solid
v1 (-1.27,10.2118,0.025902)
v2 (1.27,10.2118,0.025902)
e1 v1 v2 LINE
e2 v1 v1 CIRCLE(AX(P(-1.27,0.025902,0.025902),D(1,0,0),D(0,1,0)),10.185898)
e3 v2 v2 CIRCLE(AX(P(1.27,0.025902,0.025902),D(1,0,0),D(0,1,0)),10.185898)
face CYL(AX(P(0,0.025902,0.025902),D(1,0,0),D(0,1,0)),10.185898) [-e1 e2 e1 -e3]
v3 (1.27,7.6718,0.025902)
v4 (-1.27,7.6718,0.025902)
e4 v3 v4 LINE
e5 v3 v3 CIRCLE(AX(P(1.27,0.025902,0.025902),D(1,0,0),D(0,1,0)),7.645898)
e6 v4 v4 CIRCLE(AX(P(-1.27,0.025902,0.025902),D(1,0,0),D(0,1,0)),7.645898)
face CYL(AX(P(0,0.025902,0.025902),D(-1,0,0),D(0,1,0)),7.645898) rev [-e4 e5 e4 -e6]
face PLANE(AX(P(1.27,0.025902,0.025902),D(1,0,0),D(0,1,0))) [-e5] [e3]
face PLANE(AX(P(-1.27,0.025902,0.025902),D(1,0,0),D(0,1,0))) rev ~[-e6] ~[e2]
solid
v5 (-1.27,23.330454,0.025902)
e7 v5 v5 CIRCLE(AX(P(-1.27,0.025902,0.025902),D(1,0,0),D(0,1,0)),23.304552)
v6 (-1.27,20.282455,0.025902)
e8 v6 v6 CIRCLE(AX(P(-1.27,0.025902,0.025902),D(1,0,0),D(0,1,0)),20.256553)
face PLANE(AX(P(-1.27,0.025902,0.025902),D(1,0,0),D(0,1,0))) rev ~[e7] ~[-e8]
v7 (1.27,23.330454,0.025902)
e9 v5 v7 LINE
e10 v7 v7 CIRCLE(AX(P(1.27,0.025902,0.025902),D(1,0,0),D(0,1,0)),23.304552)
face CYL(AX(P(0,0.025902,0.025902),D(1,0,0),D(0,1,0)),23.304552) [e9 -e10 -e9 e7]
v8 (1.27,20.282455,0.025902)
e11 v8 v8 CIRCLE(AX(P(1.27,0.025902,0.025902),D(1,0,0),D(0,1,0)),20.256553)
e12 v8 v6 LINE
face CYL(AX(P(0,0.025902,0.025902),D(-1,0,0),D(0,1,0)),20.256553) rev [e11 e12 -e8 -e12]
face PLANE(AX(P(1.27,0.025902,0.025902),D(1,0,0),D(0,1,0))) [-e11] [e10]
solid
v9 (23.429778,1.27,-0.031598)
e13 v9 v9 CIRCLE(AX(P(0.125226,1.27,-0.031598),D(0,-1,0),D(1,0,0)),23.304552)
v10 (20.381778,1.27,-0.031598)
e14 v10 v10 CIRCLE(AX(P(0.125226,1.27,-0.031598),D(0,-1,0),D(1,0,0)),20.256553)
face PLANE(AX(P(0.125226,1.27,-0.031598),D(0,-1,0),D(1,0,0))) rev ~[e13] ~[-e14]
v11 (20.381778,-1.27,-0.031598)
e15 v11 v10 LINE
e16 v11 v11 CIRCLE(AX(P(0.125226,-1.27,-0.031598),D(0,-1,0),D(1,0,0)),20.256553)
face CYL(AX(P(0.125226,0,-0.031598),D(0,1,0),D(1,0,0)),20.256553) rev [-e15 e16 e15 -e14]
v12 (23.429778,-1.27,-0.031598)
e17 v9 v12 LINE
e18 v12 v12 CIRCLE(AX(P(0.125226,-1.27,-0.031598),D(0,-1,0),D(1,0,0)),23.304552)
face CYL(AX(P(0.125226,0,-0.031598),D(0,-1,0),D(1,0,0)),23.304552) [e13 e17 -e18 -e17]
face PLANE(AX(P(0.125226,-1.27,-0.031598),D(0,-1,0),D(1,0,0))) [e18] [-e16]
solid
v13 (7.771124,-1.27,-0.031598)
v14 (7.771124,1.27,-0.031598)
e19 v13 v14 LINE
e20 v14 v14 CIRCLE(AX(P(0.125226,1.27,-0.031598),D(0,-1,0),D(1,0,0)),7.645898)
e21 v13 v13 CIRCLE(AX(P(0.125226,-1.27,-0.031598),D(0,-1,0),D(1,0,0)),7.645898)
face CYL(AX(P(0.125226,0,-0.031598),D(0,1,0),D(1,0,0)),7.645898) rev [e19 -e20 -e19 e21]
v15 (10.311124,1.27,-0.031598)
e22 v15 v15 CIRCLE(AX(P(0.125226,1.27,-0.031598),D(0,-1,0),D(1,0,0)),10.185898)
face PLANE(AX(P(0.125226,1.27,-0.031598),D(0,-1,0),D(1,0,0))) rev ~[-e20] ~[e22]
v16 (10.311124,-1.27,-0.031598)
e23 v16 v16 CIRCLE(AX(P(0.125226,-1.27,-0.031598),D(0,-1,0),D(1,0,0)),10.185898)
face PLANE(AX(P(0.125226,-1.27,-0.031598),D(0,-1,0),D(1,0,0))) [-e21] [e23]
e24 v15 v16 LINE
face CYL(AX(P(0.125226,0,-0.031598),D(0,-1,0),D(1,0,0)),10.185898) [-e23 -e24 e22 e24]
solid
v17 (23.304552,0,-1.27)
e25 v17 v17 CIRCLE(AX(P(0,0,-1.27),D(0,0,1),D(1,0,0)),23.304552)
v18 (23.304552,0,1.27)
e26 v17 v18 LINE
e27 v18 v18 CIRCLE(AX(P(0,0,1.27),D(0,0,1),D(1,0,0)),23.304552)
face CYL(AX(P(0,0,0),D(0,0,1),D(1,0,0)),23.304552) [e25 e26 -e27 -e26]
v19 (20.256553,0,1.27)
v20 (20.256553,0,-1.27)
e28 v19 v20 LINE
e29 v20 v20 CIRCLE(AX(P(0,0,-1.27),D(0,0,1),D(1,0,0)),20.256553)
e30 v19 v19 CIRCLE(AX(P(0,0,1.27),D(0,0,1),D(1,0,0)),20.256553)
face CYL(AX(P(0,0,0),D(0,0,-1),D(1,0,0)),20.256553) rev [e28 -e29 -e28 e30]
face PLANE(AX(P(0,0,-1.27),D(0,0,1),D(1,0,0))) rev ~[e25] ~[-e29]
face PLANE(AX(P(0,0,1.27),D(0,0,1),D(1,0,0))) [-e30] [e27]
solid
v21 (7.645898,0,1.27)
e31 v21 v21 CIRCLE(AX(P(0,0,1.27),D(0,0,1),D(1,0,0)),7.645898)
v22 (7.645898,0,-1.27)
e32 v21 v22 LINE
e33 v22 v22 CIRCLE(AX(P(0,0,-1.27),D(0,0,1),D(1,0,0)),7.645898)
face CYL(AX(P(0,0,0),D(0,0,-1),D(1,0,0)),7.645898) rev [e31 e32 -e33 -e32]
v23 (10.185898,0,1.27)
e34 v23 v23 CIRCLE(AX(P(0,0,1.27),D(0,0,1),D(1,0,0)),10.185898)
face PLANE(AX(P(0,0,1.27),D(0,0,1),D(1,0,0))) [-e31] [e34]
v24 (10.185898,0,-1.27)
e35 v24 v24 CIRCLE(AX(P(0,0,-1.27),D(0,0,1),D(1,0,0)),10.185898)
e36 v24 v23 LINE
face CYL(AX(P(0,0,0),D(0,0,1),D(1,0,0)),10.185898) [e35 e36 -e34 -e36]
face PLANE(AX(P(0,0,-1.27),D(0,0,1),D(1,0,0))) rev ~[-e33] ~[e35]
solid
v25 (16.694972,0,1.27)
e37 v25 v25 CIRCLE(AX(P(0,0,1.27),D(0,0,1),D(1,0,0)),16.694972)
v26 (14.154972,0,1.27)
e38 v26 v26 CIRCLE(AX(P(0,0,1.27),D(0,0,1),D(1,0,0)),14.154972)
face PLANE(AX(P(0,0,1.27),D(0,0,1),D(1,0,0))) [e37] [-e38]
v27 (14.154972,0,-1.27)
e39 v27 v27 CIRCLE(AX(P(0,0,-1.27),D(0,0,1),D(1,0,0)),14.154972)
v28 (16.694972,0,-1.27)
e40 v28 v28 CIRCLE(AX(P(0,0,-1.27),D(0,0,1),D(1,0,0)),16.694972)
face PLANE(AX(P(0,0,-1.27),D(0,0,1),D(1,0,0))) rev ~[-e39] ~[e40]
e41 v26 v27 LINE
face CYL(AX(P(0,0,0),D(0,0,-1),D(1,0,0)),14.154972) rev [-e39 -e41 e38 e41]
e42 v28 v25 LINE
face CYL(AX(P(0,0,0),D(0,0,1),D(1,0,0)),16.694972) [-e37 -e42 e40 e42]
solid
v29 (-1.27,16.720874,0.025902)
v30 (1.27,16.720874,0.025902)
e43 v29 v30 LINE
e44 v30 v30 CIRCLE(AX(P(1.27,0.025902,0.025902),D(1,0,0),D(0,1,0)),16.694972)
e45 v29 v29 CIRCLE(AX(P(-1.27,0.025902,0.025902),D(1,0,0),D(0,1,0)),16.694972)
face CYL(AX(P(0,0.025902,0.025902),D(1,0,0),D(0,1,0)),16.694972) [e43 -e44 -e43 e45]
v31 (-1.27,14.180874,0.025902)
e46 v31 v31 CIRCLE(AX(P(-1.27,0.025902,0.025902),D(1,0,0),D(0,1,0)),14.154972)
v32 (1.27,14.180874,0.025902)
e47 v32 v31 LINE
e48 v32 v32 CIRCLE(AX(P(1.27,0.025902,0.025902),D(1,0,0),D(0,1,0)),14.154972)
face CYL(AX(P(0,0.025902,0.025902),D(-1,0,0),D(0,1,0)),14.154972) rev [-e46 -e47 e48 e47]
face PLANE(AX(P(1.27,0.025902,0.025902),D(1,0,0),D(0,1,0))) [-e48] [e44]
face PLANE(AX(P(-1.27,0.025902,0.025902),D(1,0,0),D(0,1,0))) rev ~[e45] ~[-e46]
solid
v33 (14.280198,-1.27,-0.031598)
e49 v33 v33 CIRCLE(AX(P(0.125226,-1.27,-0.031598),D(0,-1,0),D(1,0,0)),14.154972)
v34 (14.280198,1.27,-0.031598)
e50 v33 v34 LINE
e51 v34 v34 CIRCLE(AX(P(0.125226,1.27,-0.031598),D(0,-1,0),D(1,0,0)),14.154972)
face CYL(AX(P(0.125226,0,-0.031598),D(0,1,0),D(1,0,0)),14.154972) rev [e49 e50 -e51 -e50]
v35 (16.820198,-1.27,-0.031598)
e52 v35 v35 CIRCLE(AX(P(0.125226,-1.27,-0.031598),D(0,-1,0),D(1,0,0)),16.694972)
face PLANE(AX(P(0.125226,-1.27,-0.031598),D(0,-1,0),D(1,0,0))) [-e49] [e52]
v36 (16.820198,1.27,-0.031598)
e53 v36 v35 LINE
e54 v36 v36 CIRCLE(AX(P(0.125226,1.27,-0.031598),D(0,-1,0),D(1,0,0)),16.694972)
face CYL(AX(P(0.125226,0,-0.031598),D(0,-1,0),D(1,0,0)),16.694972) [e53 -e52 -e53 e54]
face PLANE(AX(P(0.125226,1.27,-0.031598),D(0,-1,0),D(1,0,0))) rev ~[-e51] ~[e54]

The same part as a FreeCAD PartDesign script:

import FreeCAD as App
import Part
import Sketcher
Q = App.Units.Quantity

doc = App.newDocument("Part")
body = doc.addObject("PartDesign::Body", "Body")

# Sketch on XY plane
sketch1 = body.newObject("Sketcher::SketchObject", "Sketch")
sketch1.AttachmentSupport = (doc.getObject("XY_Plane"), [""])
sketch1.MapMode = "FlatFace"
sketch1.addGeometry([
    Part.Circle(App.Vector(0, 0, 0), App.Vector(0, 0, 1), 17),
    Part.Circle(App.Vector(0, 0, 0), App.Vector(0, 0, 1), 14),
], False)
sketch1.addConstraint([
    Sketcher.Constraint("Coincident", 0, 3, -1, 1),
    Sketcher.Constraint("Coincident", 1, 3, -1, 1),
    Sketcher.Constraint("Diameter", 0, 33.389944),
    Sketcher.Constraint("Diameter", 1, 28.309944),
])
pad1 = body.newObject("PartDesign::Pad", "Pad")
pad1.Profile = sketch1
pad1.Length = Q("0.1 in")
pad1.Midplane = True
body2 = doc.addObject("PartDesign::Body", "Body001")

# Sketch on XY plane
sketch2 = body2.newObject("Sketcher::SketchObject", "Sketch001")
sketch2.AttachmentSupport = (doc.getObject("XY_Plane001"), [""])
sketch2.MapMode = "FlatFace"
sketch2.addGeometry([
    Part.Circle(App.Vector(0, 0, 0), App.Vector(0, 0, 1), 23),
    Part.Circle(App.Vector(0, 0, 0), App.Vector(0, 0, 1), 20),
], False)
sketch2.addConstraint([
    Sketcher.Constraint("Coincident", 0, 3, -1, 1),
    Sketcher.Constraint("Coincident", 1, 3, -1, 1),
    Sketcher.Constraint("Diameter", 0, 46.609104),
    Sketcher.Constraint("Diameter", 1, 40.513106),
])
pad2 = body2.newObject("PartDesign::Pad", "Pad001")
pad2.Profile = sketch2
pad2.Length = Q("0.1 in")
pad2.Midplane = True
body3 = doc.addObject("PartDesign::Body", "Body002")

# Sketch on XY plane
sketch3 = body3.newObject("Sketcher::SketchObject", "Sketch002")
sketch3.AttachmentSupport = (doc.getObject("XY_Plane002"), [""])
sketch3.MapMode = "FlatFace"
sketch3.addGeometry([
    Part.Circle(App.Vector(0, 0, 0), App.Vector(0, 0, 1), 10),
    Part.Circle(App.Vector(0, 0, 0), App.Vector(0, 0, 1), 8),
], False)
sketch3.addConstraint([
    Sketcher.Constraint("Coincident", 0, 3, -1, 1),
    Sketcher.Constraint("Coincident", 1, 3, -1, 1),
    Sketcher.Constraint("Diameter", 0, 20.371797),
    Sketcher.Constraint("Diameter", 1, 15.291797),
])
pad3 = body3.newObject("PartDesign::Pad", "Pad002")
pad3.Profile = sketch3
pad3.Length = Q("0.1 in")
pad3.Midplane = True
body4 = doc.addObject("PartDesign::Body", "Body003")

# Sketch on XZ plane
sketch4 = body4.newObject("Sketcher::SketchObject", "Sketch003")
sketch4.AttachmentSupport = (doc.getObject("XZ_Plane003"), [""])
sketch4.MapMode = "FlatFace"
sketch4.addGeometry([
    Part.Circle(App.Vector(0, 0, 0), App.Vector(0, 0, 1), 23),
    Part.Circle(App.Vector(0, 0, 0), App.Vector(0, 0, 1), 20),
], False)
sketch4.addConstraint([
    Sketcher.Constraint("Coincident", 1, 3, 0, 3),
    Sketcher.Constraint("Diameter", 0, 46.609104),
    Sketcher.Constraint("Diameter", 1, 40.513106),
    Sketcher.Constraint("DistanceX", -1, 1, 0, 3, 0.125226),
    Sketcher.Constraint("DistanceY", 0, 3, -1, 1, 0.031598),
])
pad4 = body4.newObject("PartDesign::Pad", "Pad003")
pad4.Profile = sketch4
pad4.Length = Q("0.1 in")
pad4.Midplane = True
body5 = doc.addObject("PartDesign::Body", "Body004")

# Sketch on XZ plane
sketch5 = body5.newObject("Sketcher::SketchObject", "Sketch004")
sketch5.AttachmentSupport = (doc.getObject("XZ_Plane004"), [""])
sketch5.MapMode = "FlatFace"
sketch5.addGeometry([
    Part.Circle(App.Vector(0, 0, 0), App.Vector(0, 0, 1), 17),
    Part.Circle(App.Vector(0, 0, 0), App.Vector(0, 0, 1), 14),
], False)
sketch5.addConstraint([
    Sketcher.Constraint("Coincident", 1, 3, 0, 3),
    Sketcher.Constraint("Diameter", 0, 33.389944),
    Sketcher.Constraint("Diameter", 1, 28.309944),
    Sketcher.Constraint("DistanceX", -1, 1, 0, 3, 0.125226),
    Sketcher.Constraint("DistanceY", 0, 3, -1, 1, 0.031598),
])
pad5 = body5.newObject("PartDesign::Pad", "Pad004")
pad5.Profile = sketch5
pad5.Length = Q("0.1 in")
pad5.Midplane = True
body6 = doc.addObject("PartDesign::Body", "Body005")

# Sketch on XZ plane
sketch6 = body6.newObject("Sketcher::SketchObject", "Sketch005")
sketch6.AttachmentSupport = (doc.getObject("XZ_Plane005"), [""])
sketch6.MapMode = "FlatFace"
sketch6.addGeometry([
    Part.Circle(App.Vector(0, 0, 0), App.Vector(0, 0, 1), 10),
    Part.Circle(App.Vector(0, 0, 0), App.Vector(0, 0, 1), 8),
], False)
sketch6.addConstraint([
    Sketcher.Constraint("Coincident", 1, 3, 0, 3),
    Sketcher.Constraint("Diameter", 0, 20.371797),
    Sketcher.Constraint("Diameter", 1, 15.291797),
    Sketcher.Constraint("DistanceX", -1, 1, 0, 3, 0.125226),
    Sketcher.Constraint("DistanceY", 0, 3, -1, 1, 0.031598),
])
pad6 = body6.newObject("PartDesign::Pad", "Pad005")
pad6.Profile = sketch6
pad6.Length = Q("0.1 in")
pad6.Midplane = True
body7 = doc.addObject("PartDesign::Body", "Body006")

# Sketch on YZ plane
sketch7 = body7.newObject("Sketcher::SketchObject", "Sketch006")
sketch7.AttachmentSupport = (doc.getObject("YZ_Plane006"), [""])
sketch7.MapMode = "FlatFace"
sketch7.addGeometry([
    Part.Circle(App.Vector(0, 0, 0), App.Vector(0, 0, 1), 23),
    Part.Circle(App.Vector(0, 0, 0), App.Vector(0, 0, 1), 20),
], False)
sketch7.addConstraint([
    Sketcher.Constraint("Coincident", 1, 3, 0, 3),
    Sketcher.Constraint("Diameter", 0, 46.609104),
    Sketcher.Constraint("Diameter", 1, 40.513106),
    Sketcher.Constraint("DistanceX", -1, 1, 0, 3, 0.025902),
    Sketcher.Constraint("DistanceY", -1, 1, 0, 3, 0.025902),
])
pad7 = body7.newObject("PartDesign::Pad", "Pad006")
pad7.Profile = sketch7
pad7.Length = Q("0.1 in")
pad7.Midplane = True
body8 = doc.addObject("PartDesign::Body", "Body007")

# Sketch on YZ plane
sketch8 = body8.newObject("Sketcher::SketchObject", "Sketch007")
sketch8.AttachmentSupport = (doc.getObject("YZ_Plane007"), [""])
sketch8.MapMode = "FlatFace"
sketch8.addGeometry([
    Part.Circle(App.Vector(0, 0, 0), App.Vector(0, 0, 1), 17),
    Part.Circle(App.Vector(0, 0, 0), App.Vector(0, 0, 1), 14),
], False)
sketch8.addConstraint([
    Sketcher.Constraint("Coincident", 1, 3, 0, 3),
    Sketcher.Constraint("Diameter", 0, 33.389944),
    Sketcher.Constraint("Diameter", 1, 28.309944),
    Sketcher.Constraint("DistanceX", -1, 1, 0, 3, 0.025902),
    Sketcher.Constraint("DistanceY", -1, 1, 0, 3, 0.025902),
])
pad8 = body8.newObject("PartDesign::Pad", "Pad007")
pad8.Profile = sketch8
pad8.Length = Q("0.1 in")
pad8.Midplane = True
body9 = doc.addObject("PartDesign::Body", "Body008")

# Sketch on YZ plane
sketch9 = body9.newObject("Sketcher::SketchObject", "Sketch008")
sketch9.AttachmentSupport = (doc.getObject("YZ_Plane008"), [""])
sketch9.MapMode = "FlatFace"
sketch9.addGeometry([
    Part.Circle(App.Vector(0, 0, 0), App.Vector(0, 0, 1), 10),
    Part.Circle(App.Vector(0, 0, 0), App.Vector(0, 0, 1), 8),
], False)
sketch9.addConstraint([
    Sketcher.Constraint("Coincident", 1, 3, 0, 3),
    Sketcher.Constraint("Diameter", 0, 20.371797),
    Sketcher.Constraint("Diameter", 1, 15.291797),
    Sketcher.Constraint("DistanceX", -1, 1, 0, 3, 0.025902),
    Sketcher.Constraint("DistanceY", -1, 1, 0, 3, 0.025902),
])
pad9 = body9.newObject("PartDesign::Pad", "Pad008")
pad9.Profile = sketch9
pad9.Length = Q("0.1 in")
pad9.Midplane = True

doc.recompute()
